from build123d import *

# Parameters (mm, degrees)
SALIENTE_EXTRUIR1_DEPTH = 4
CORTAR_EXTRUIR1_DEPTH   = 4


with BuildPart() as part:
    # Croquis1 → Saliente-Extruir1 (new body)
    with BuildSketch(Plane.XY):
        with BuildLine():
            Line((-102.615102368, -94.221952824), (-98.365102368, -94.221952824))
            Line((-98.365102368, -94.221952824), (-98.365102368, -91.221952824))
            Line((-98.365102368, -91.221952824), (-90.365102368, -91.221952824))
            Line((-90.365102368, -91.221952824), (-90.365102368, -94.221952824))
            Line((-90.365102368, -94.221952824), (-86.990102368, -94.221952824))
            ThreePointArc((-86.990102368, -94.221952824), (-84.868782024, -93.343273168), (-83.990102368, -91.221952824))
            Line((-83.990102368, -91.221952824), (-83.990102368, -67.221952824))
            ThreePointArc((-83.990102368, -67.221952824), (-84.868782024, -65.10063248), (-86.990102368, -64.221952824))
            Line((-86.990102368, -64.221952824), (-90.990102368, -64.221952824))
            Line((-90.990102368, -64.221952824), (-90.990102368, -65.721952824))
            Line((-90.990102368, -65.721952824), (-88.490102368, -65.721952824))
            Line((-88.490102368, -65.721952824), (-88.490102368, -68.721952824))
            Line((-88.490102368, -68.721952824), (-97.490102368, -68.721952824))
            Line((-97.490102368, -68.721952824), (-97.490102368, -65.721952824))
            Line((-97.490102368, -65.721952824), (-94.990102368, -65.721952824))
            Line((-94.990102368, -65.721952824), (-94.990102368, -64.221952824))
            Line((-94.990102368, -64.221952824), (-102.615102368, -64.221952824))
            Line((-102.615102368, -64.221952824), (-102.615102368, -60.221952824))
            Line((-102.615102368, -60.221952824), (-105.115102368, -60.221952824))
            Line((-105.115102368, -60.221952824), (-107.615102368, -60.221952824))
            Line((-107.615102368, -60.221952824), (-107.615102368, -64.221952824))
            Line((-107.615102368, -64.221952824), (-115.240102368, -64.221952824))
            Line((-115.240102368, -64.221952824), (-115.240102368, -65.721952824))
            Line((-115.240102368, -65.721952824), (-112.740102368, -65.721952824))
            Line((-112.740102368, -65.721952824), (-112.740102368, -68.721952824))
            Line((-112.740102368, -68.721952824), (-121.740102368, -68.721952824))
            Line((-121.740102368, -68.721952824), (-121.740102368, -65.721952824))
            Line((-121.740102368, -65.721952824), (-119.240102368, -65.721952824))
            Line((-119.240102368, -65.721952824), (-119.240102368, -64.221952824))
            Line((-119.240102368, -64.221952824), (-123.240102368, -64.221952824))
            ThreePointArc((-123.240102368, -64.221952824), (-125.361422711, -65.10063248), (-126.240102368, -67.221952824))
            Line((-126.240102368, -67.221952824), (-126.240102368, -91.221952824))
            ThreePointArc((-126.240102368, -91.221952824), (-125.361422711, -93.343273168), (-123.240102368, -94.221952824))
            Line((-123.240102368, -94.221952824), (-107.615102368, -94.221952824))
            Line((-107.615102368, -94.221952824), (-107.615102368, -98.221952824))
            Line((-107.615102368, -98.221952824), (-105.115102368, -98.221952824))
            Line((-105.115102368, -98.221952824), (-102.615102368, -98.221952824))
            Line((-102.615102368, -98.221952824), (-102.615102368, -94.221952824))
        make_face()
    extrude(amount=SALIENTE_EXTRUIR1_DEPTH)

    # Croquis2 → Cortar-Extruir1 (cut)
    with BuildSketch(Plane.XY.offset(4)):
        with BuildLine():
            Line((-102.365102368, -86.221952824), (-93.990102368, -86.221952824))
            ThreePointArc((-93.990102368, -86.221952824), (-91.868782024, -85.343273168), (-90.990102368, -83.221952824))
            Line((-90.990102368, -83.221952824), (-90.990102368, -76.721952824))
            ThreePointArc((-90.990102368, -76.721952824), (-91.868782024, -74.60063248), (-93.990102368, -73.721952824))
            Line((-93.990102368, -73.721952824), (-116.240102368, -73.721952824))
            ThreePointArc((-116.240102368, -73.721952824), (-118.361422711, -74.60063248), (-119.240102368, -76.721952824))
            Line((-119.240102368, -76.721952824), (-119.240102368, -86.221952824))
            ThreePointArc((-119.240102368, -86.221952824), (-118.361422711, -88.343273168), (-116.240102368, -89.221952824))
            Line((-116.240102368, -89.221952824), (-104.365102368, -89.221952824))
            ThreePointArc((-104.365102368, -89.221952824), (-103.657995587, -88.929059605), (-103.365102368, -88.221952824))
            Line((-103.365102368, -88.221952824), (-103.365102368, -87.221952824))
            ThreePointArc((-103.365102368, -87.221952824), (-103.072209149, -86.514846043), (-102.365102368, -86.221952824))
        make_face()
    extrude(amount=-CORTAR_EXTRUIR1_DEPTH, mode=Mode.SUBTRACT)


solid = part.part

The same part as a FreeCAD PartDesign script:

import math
import FreeCAD as App
import Part
import Sketcher
Q = App.Units.Quantity

doc = App.newDocument("Part")
body = doc.addObject("PartDesign::Body", "Body")

# Sketch on XY plane
sketch1 = body.newObject("Sketcher::SketchObject", "Sketch")
sketch1.AttachmentSupport = (doc.getObject("XY_Plane"), [""])
sketch1.MapMode = "FlatFace"
sketch1.addGeometry([
    Part.LineSegment(App.Vector(-102.615102, -94.221953, 0), App.Vector(-98.365102, -94.221953, 0)),  # 0
    Part.LineSegment(App.Vector(-98.365102, -94.221953, 0), App.Vector(-98.365102, -91.221953, 0)),  # 1
    Part.LineSegment(App.Vector(-98.365102, -91.221953, 0), App.Vector(-90.365102, -91.221953, 0)),  # 2
    Part.LineSegment(App.Vector(-90.365102, -91.221953, 0), App.Vector(-90.365102, -94.221953, 0)),  # 3
    Part.LineSegment(App.Vector(-90.365102, -94.221953, 0), App.Vector(-86.990102, -94.221953, 0)),  # 4
    Part.ArcOfCircle(Part.Circle(App.Vector(-86.990102, -91.221953, 0), App.Vector(0, 0, 1), 3), math.radians(-90), math.radians(0)),  # 5
    Part.LineSegment(App.Vector(-83.990102, -91.221953, 0), App.Vector(-83.990102, -67.221953, 0)),  # 6
    Part.ArcOfCircle(Part.Circle(App.Vector(-86.990102, -67.221953, 0), App.Vector(0, 0, 1), 3), math.radians(0), math.radians(90)),  # 7
    Part.LineSegment(App.Vector(-86.990102, -64.221953, 0), App.Vector(-90.990102, -64.221953, 0)),  # 8
    Part.LineSegment(App.Vector(-90.990102, -64.221953, 0), App.Vector(-90.990102, -65.721953, 0)),  # 9
    Part.LineSegment(App.Vector(-90.990102, -65.721953, 0), App.Vector(-88.490102, -65.721953, 0)),  # 10
    Part.LineSegment(App.Vector(-88.490102, -65.721953, 0), App.Vector(-88.490102, -68.721953, 0)),  # 11
    Part.LineSegment(App.Vector(-88.490102, -68.721953, 0), App.Vector(-97.490102, -68.721953, 0)),  # 12
    Part.LineSegment(App.Vector(-97.490102, -68.721953, 0), App.Vector(-97.490102, -65.721953, 0)),  # 13
    Part.LineSegment(App.Vector(-97.490102, -65.721953, 0), App.Vector(-94.990102, -65.721953, 0)),  # 14
    Part.LineSegment(App.Vector(-94.990102, -65.721953, 0), App.Vector(-94.990102, -64.221953, 0)),  # 15
    Part.LineSegment(App.Vector(-94.990102, -64.221953, 0), App.Vector(-102.615102, -64.221953, 0)),  # 16
    Part.LineSegment(App.Vector(-102.615102, -64.221953, 0), App.Vector(-102.615102, -60.221953, 0)),  # 17
    Part.LineSegment(App.Vector(-102.615102, -60.221953, 0), App.Vector(-107.615102, -60.221953, 0)),  # 18
    Part.LineSegment(App.Vector(-107.615102, -60.221953, 0), App.Vector(-107.615102, -64.221953, 0)),  # 19
    Part.LineSegment(App.Vector(-107.615102, -64.221953, 0), App.Vector(-115.240102, -64.221953, 0)),  # 20
    Part.LineSegment(App.Vector(-115.240102, -64.221953, 0), App.Vector(-115.240102, -65.721953, 0)),  # 21
    Part.LineSegment(App.Vector(-115.240102, -65.721953, 0), App.Vector(-112.740102, -65.721953, 0)),  # 22
    Part.LineSegment(App.Vector(-112.740102, -65.721953, 0), App.Vector(-112.740102, -68.721953, 0)),  # 23
    Part.LineSegment(App.Vector(-112.740102, -68.721953, 0), App.Vector(-121.740102, -68.721953, 0)),  # 24
    Part.LineSegment(App.Vector(-121.740102, -68.721953, 0), App.Vector(-121.740102, -65.721953, 0)),  # 25
    Part.LineSegment(App.Vector(-121.740102, -65.721953, 0), App.Vector(-119.240102, -65.721953, 0)),  # 26
    Part.LineSegment(App.Vector(-119.240102, -65.721953, 0), App.Vector(-119.240102, -64.221953, 0)),  # 27
    Part.LineSegment(App.Vector(-119.240102, -64.221953, 0), App.Vector(-123.240102, -64.221953, 0)),  # 28
    Part.ArcOfCircle(Part.Circle(App.Vector(-123.240102, -67.221953, 0), App.Vector(0, 0, 1), 3), math.radians(90), math.radians(180)),  # 29
    Part.LineSegment(App.Vector(-126.240102, -67.221953, 0), App.Vector(-126.240102, -91.221953, 0)),  # 30
    Part.ArcOfCircle(Part.Circle(App.Vector(-123.240102, -91.221953, 0), App.Vector(0, 0, 1), 3), math.radians(180), math.radians(270)),  # 31
    Part.LineSegment(App.Vector(-123.240102, -94.221953, 0), App.Vector(-107.615102, -94.221953, 0)),  # 32
    Part.LineSegment(App.Vector(-107.615102, -94.221953, 0), App.Vector(-107.615102, -98.221953, 0)),  # 33
    Part.LineSegment(App.Vector(-107.615102, -98.221953, 0), App.Vector(-102.615102, -98.221953, 0)),  # 34
    Part.LineSegment(App.Vector(-102.615102, -98.221953, 0), App.Vector(-102.615102, -94.221953, 0)),  # 35
], False)
sketch1.addConstraint([
    Sketcher.Constraint("Coincident", 0, 2, 1, 1),
    Sketcher.Constraint("Coincident", 1, 2, 2, 1),
    Sketcher.Constraint("Coincident", 2, 2, 3, 1),
    Sketcher.Constraint("Coincident", 3, 2, 4, 1),
    Sketcher.Constraint("Tangent", 4, 2, 5, 1),
    Sketcher.Constraint("Tangent", 5, 2, 6, 1),
    Sketcher.Constraint("Tangent", 6, 2, 7, 1),
    Sketcher.Constraint("Tangent", 7, 2, 8, 1),
    Sketcher.Constraint("Coincident", 8, 2, 9, 1),
    Sketcher.Constraint("Coincident", 9, 2, 10, 1),
    Sketcher.Constraint("Coincident", 10, 2, 11, 1),
    Sketcher.Constraint("Coincident", 11, 2, 12, 1),
    Sketcher.Constraint("Coincident", 12, 2, 13, 1),
    Sketcher.Constraint("Coincident", 13, 2, 14, 1),
    Sketcher.Constraint("Coincident", 14, 2, 15, 1),
    Sketcher.Constraint("Coincident", 15, 2, 16, 1),
    Sketcher.Constraint("Coincident", 16, 2, 17, 1),
    Sketcher.Constraint("Coincident", 17, 2, 18, 1),
    Sketcher.Constraint("Coincident", 18, 2, 19, 1),
    Sketcher.Constraint("Coincident", 19, 2, 20, 1),
    Sketcher.Constraint("Coincident", 20, 2, 21, 1),
    Sketcher.Constraint("Coincident", 21, 2, 22, 1),
    Sketcher.Constraint("Coincident", 22, 2, 23, 1),
    Sketcher.Constraint("Coincident", 23, 2, 24, 1),
    Sketcher.Constraint("Coincident", 24, 2, 25, 1),
    Sketcher.Constraint("Coincident", 25, 2, 26, 1),
    Sketcher.Constraint("Coincident", 26, 2, 27, 1),
    Sketcher.Constraint("Coincident", 27, 2, 28, 1),
    Sketcher.Constraint("Tangent", 28, 2, 29, 1),
    Sketcher.Constraint("Tangent", 29, 2, 30, 1),
    Sketcher.Constraint("Tangent", 30, 2, 31, 1),
    Sketcher.Constraint("Tangent", 31, 2, 32, 1),
    Sketcher.Constraint("Coincident", 32, 2, 33, 1),
    Sketcher.Constraint("Coincident", 33, 2, 34, 1),
    Sketcher.Constraint("Coincident", 34, 2, 35, 1),
    Sketcher.Constraint("Coincident", 35, 2, 0, 1),
    Sketcher.Constraint("Horizontal", 0),
    Sketcher.Constraint("Vertical", 1),
    Sketcher.Constraint("Horizontal", 2),
    Sketcher.Constraint("Vertical", 3),
    Sketcher.Constraint("Horizontal", 4),
    Sketcher.Constraint("Vertical", 6),
    Sketcher.Constraint("Horizontal", 8),
    Sketcher.Constraint("Vertical", 9),
    Sketcher.Constraint("Horizontal", 10),
    Sketcher.Constraint("Vertical", 11),
    Sketcher.Constraint("Horizontal", 12),
    Sketcher.Constraint("Vertical", 13),
    Sketcher.Constraint("Horizontal", 14),
    Sketcher.Constraint("Vertical", 15),
    Sketcher.Constraint("Horizontal", 16),
    Sketcher.Constraint("Vertical", 17),
    Sketcher.Constraint("Horizontal", 18),
    Sketcher.Constraint("Vertical", 19),
    Sketcher.Constraint("Horizontal", 20),
    Sketcher.Constraint("Vertical", 21),
    Sketcher.Constraint("Horizontal", 22),
    Sketcher.Constraint("Vertical", 23),
    Sketcher.Constraint("Horizontal", 24),
    Sketcher.Constraint("Vertical", 25),
    Sketcher.Constraint("Horizontal", 26),
    Sketcher.Constraint("Vertical", 27),
    Sketcher.Constraint("Horizontal", 28),
    Sketcher.Constraint("Vertical", 30),
    Sketcher.Constraint("Horizontal", 32),
    Sketcher.Constraint("Vertical", 33),
    Sketcher.Constraint("Horizontal", 34),
    Sketcher.Constraint("Vertical", 35),
    Sketcher.Constraint("Equal", 5, 7),
    Sketcher.Constraint("Equal", 7, 29),
    Sketcher.Constraint("Equal", 29, 31),
    Sketcher.Constraint("Horizontal", 7, 3, 29, 3),
    Sketcher.Constraint("Horizontal", 5, 3, 31, 3),
    Sketcher.Constraint("Horizontal", 31, 3, 1, 2),
    Sketcher.Constraint("Horizontal", 0, 2, 3, 2),
    Sketcher.Constraint("Horizontal", 10, 2, 13, 2),
    Sketcher.Constraint("Horizontal", 8, 2, 15, 2),
    Sketcher.Constraint("Horizontal", 16, 2, 19, 2),
    Sketcher.Constraint("Horizontal", 14, 2, 21, 2),
    Sketcher.Constraint("Horizontal", 12, 2, 23, 2),
    Sketcher.Constraint("Horizontal", 22, 2, 25, 2),
    Sketcher.Constraint("Vertical", 19, 2, 32, 2),
    Sketcher.Constraint("Vertical", 17, 2, 34, 2),
    Sketcher.Constraint("Equal", 10, 14),
    Sketcher.Constraint("Equal", 16, 20),
    Sketcher.Constraint("Equal", 14, 22),
    Sketcher.Constraint("Equal", 12, 24),
    Sketcher.Constraint("Equal", 22, 26),
    Sketcher.Constraint("Equal", 8, 28),
    Sketcher.Constraint("Equal", 3, 11),
    Sketcher.Constraint("Equal", 28, 17),
    Sketcher.Constraint("Equal", 19, 33),
    Sketcher.Constraint("Radius", 5, Q("3 mm")),
    Sketcher.Constraint("DistanceX", 2, 1, 2, 2, Q("8 mm")),
    Sketcher.Constraint("DistanceX", 8, 2, 8, 1, Q("4 mm")),
    Sketcher.Constraint("DistanceX", 12, 2, 12, 1, Q("9 mm")),
    Sketcher.Constraint("DistanceX", 18, 2, 18, 1, Q("5 mm")),
    Sketcher.Constraint("DistanceY", 6, 1, 6, 2, Q("24 mm")),
    Sketcher.Constraint("DistanceX", 10, 1, 10, 2, Q("2.5 mm")),
    Sketcher.Constraint("DistanceY", 9, 2, 9, 1, Q("1.5 mm")),
    Sketcher.Constraint("DistanceX", 0, 1, 0, 2, Q("4.25 mm")),
    Sketcher.Constraint("DistanceX", 4, 1, 4, 2, Q("3.375 mm")),
    Sketcher.Constraint("DistanceX", 5, 3, -1, 1, Q("86.990102 mm")),
    Sketcher.Constraint("DistanceY", 5, 3, -1, 1, Q("91.221953 mm")),
])
pad1 = body.newObject("PartDesign::Pad", "Pad")
pad1.Profile = sketch1
pad1.Length = 4

# Sketch on XY plane
sketch2 = body.newObject("Sketcher::SketchObject", "Sketch001")
sketch2.AttachmentSupport = (doc.getObject("XY_Plane"), [""])
sketch2.MapMode = "FlatFace"
sketch2.AttachmentOffset = App.Placement(App.Vector(0, 0, 4), App.Rotation())
sketch2.addGeometry([
    Part.LineSegment(App.Vector(-102.365102, -86.221953, 0), App.Vector(-93.990102, -86.221953, 0)),  # 0
    Part.ArcOfCircle(Part.Circle(App.Vector(-93.990102, -83.221953, 0), App.Vector(0, 0, 1), 3), math.radians(-90), math.radians(0)),  # 1
    Part.LineSegment(App.Vector(-90.990102, -83.221953, 0), App.Vector(-90.990102, -76.721953, 0)),  # 2
    Part.ArcOfCircle(Part.Circle(App.Vector(-93.990102, -76.721953, 0), App.Vector(0, 0, 1), 3), math.radians(0), math.radians(90)),  # 3
    Part.LineSegment(App.Vector(-93.990102, -73.721953, 0), App.Vector(-116.240102, -73.721953, 0)),  # 4
    Part.ArcOfCircle(Part.Circle(App.Vector(-116.240102, -76.721953, 0), App.Vector(0, 0, 1), 3), math.radians(90), math.radians(180)),  # 5
    Part.LineSegment(App.Vector(-119.240102, -76.721953, 0), App.Vector(-119.240102, -86.221953, 0)),  # 6
    Part.ArcOfCircle(Part.Circle(App.Vector(-116.240102, -86.221953, 0), App.Vector(0, 0, 1), 3), math.radians(180), math.radians(270)),  # 7
    Part.LineSegment(App.Vector(-116.240102, -89.221953, 0), App.Vector(-104.365102, -89.221953, 0)),  # 8
    Part.ArcOfCircle(Part.Circle(App.Vector(-104.365102, -88.221953, 0), App.Vector(0, 0, 1), 1), math.radians(-90), math.radians(0)),  # 9
    Part.LineSegment(App.Vector(-103.365102, -88.221953, 0), App.Vector(-103.365102, -87.221953, 0)),  # 10
    Part.ArcOfCircle(Part.Circle(App.Vector(-102.365102, -87.221953, 0), App.Vector(0, 0, 1), 1), math.radians(90), math.radians(180)),  # 11
], False)
sketch2.addConstraint([
    Sketcher.Constraint("Tangent", 0, 2, 1, 1),
    Sketcher.Constraint("Tangent", 1, 2, 2, 1),
    Sketcher.Constraint("Tangent", 2, 2, 3, 1),
    Sketcher.Constraint("Tangent", 3, 2, 4, 1),
    Sketcher.Constraint("Tangent", 4, 2, 5, 1),
    Sketcher.Constraint("Tangent", 5, 2, 6, 1),
    Sketcher.Constraint("Tangent", 6, 2, 7, 1),
    Sketcher.Constraint("Tangent", 7, 2, 8, 1),
    Sketcher.Constraint("Tangent", 8, 2, 9, 1),
    Sketcher.Constraint("Tangent", 9, 2, 10, 1),
    Sketcher.Constraint("Tangent", 10, 2, 11, 2),
    Sketcher.Constraint("Tangent", 11, 1, 0, 1),
    Sketcher.Constraint("Horizontal", 0),
    Sketcher.Constraint("Vertical", 2),
    Sketcher.Constraint("Horizontal", 4),
    Sketcher.Constraint("Vertical", 6),
    Sketcher.Constraint("Horizontal", 8),
    Sketcher.Constraint("Vertical", 10),
    Sketcher.Constraint("Equal", 1, 3),
    Sketcher.Constraint("Equal", 3, 5),
    Sketcher.Constraint("Equal", 5, 7),
    Sketcher.Constraint("Equal", 9, 11),
    Sketcher.Constraint("Horizontal", 7, 3, 0, 2),
    Sketcher.Constraint("Radius", 1, Q("3 mm")),
    Sketcher.Constraint("Radius", 9, Q("1 mm")),
    Sketcher.Constraint("DistanceY", 2, 1, 2, 2, Q("6.5 mm")),
    Sketcher.Constraint("DistanceX", 4, 2, 4, 1, Q("22.25 mm")),
    Sketcher.Constraint("DistanceX", 0, 1, 0, 2, Q("8.375 mm")),
    Sketcher.Constraint("DistanceX", 1, 3, -1, 1, Q("93.990102 mm")),
    Sketcher.Constraint("DistanceY", 1, 3, -1, 1, Q("83.221953 mm")),
])
pocket1 = body.newObject("PartDesign::Pocket", "Pocket")
pocket1.Profile = sketch2
pocket1.Length = 4

doc.recompute()
